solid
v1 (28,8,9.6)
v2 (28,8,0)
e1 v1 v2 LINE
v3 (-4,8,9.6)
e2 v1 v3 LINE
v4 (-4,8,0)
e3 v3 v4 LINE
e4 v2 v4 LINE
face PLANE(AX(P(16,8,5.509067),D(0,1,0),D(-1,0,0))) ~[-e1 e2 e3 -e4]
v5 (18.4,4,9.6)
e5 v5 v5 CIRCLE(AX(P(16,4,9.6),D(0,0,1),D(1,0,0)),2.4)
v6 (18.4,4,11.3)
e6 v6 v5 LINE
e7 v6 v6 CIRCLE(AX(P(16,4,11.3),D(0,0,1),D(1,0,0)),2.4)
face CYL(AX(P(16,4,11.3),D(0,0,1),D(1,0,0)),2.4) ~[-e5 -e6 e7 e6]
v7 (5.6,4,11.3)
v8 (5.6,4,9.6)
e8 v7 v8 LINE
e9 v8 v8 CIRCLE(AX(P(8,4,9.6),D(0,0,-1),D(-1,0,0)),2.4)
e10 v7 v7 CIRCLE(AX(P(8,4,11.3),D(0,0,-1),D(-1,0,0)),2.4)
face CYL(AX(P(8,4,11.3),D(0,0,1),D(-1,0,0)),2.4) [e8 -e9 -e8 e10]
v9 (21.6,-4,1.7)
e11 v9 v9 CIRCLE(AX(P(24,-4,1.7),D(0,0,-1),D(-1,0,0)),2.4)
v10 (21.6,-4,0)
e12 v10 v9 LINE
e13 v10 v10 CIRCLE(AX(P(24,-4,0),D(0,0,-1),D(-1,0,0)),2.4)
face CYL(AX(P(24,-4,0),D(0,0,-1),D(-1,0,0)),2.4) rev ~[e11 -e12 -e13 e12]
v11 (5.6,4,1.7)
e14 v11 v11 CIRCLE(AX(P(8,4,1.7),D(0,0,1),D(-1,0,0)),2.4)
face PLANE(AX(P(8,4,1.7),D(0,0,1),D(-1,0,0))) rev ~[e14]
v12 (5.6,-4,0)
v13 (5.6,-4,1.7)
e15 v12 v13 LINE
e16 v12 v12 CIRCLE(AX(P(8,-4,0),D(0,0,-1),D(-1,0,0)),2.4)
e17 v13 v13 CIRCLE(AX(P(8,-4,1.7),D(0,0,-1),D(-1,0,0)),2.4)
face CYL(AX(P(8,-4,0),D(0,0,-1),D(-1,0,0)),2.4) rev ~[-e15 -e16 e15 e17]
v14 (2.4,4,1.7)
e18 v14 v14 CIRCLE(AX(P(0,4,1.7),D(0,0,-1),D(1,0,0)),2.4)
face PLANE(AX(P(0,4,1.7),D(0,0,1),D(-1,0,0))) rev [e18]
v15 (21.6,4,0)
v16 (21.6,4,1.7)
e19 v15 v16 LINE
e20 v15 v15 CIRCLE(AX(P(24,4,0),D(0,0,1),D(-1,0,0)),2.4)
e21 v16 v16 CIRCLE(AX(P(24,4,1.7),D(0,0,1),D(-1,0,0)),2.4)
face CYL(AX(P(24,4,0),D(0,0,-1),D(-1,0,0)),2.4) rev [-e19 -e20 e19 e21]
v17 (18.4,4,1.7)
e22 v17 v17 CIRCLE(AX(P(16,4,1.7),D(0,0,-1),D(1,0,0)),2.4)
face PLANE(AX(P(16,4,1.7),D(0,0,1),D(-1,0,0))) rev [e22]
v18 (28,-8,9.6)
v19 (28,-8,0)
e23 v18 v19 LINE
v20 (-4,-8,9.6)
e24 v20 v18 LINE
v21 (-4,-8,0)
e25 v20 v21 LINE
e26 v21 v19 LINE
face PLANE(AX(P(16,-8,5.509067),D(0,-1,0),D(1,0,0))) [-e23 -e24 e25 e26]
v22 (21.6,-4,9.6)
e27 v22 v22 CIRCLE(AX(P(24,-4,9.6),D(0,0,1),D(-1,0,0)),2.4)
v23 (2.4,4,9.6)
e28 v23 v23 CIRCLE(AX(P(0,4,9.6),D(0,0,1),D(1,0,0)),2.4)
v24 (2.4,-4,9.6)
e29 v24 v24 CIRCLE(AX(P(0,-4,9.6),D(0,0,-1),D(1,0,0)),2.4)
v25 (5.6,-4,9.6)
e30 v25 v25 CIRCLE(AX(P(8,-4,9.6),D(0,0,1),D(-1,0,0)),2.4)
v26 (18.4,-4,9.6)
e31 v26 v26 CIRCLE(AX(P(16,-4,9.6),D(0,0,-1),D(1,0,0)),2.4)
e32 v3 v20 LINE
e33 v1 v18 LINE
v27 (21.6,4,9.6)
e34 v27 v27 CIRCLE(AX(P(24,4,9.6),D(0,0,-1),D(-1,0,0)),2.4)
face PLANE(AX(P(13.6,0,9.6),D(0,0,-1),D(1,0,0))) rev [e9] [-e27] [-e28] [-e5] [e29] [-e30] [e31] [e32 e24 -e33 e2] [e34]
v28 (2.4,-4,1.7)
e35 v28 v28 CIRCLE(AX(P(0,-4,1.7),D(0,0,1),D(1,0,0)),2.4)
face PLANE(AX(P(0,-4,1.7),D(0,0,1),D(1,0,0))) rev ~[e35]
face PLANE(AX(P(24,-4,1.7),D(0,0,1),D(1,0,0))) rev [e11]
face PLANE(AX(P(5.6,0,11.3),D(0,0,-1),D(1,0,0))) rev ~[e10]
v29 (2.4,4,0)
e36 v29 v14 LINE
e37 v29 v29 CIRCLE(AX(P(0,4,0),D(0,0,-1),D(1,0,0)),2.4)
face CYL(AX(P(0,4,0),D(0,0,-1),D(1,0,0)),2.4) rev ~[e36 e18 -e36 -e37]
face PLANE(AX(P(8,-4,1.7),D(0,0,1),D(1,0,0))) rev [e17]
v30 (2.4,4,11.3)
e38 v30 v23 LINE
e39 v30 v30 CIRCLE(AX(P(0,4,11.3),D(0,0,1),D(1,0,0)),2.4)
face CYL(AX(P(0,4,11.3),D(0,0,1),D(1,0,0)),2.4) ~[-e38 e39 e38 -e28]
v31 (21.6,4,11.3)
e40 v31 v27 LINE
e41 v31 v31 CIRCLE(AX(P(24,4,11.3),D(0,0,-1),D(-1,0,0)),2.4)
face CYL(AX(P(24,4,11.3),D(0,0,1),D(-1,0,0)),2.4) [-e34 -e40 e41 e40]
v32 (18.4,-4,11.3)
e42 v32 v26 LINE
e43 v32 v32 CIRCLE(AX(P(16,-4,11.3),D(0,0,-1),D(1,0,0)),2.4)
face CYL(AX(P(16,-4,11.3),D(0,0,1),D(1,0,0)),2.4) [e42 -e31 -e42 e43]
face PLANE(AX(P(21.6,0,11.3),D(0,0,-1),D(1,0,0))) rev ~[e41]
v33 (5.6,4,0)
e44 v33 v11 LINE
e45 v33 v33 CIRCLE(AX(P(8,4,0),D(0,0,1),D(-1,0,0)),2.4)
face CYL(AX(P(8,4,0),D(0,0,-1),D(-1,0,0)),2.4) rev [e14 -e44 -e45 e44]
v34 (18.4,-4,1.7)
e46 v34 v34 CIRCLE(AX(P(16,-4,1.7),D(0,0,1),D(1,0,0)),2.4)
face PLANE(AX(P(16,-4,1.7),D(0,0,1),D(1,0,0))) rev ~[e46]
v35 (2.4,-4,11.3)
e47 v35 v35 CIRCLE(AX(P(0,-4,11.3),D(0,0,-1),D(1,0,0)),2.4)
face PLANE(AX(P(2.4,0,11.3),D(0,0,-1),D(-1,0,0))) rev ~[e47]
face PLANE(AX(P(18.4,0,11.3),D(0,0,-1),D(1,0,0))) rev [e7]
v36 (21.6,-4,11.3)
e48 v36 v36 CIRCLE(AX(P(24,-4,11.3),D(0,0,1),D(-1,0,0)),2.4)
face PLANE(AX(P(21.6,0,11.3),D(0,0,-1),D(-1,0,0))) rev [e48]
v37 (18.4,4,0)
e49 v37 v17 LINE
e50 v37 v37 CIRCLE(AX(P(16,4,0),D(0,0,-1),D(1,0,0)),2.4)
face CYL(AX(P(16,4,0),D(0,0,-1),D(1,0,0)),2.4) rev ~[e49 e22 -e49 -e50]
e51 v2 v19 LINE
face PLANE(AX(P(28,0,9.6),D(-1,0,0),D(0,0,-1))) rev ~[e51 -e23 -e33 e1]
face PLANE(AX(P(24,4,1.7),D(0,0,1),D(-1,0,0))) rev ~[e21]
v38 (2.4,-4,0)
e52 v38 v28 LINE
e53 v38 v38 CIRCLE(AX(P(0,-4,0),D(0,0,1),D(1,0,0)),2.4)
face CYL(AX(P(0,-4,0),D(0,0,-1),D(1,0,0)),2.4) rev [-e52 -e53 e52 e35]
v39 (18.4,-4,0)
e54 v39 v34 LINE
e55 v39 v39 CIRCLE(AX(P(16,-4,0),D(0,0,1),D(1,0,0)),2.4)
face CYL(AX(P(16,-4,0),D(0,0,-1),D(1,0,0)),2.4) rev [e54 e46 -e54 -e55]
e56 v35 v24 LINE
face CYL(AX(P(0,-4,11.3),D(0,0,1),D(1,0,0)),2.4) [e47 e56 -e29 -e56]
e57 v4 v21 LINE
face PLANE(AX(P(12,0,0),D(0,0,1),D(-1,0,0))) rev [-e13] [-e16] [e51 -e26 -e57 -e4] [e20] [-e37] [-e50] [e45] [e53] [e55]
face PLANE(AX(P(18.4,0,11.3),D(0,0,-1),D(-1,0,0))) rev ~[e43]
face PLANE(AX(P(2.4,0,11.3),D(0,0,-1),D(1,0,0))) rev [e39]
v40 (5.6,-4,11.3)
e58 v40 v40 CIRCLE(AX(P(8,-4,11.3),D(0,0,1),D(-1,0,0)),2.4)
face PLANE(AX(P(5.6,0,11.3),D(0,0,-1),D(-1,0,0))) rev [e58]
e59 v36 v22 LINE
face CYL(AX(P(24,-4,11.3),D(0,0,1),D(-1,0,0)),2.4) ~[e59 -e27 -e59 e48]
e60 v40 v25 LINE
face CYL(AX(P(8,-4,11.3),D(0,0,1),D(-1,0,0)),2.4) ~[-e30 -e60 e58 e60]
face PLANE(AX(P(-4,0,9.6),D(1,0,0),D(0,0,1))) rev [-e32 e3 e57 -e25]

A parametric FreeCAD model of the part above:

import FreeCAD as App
import Part
import Sketcher
from FreeCAD import Vector
Q = App.Units.Quantity


def add_polygon(sketch, points):
    """Adds a closed chain of lines whose ends are joined by coincident constraints."""
    first, n = sketch.GeometryCount, len(points)
    for a, b in zip(points, points[1:] + points[:1]):
        sketch.addGeometry(Part.LineSegment(App.Vector(*a, 0), App.Vector(*b, 0)), False)
    for i in range(n):
        sketch.addConstraint(Sketcher.Constraint("Coincident", first + i, 2, first + (i + 1) % n, 1))

doc = App.newDocument("Part")
body = doc.addObject("PartDesign::Body", "Body")

sketch1 = doc.addObject("Sketcher::SketchObject", "Sketch")
body.addObject(sketch1)
sketch1.AttachmentSupport = (doc.XZ_Plane, [""])
sketch1.MapMode = "FlatFace"
add_polygon(sketch1, [(-2.4, 9.6), (-4, 9.6), (-4, 0), (4, 0), (4, 9.6), (2.4, 9.6), (2.4, 11.3), (-2.4, 11.3)])
sketch1.addConstraint([
    Sketcher.Constraint("Horizontal", 0),
    Sketcher.Constraint("Vertical", 1),
    Sketcher.Constraint("Horizontal", 2),
    Sketcher.Constraint("Vertical", 3),
    Sketcher.Constraint("Horizontal", 4),
    Sketcher.Constraint("Vertical", 5),
    Sketcher.Constraint("Horizontal", 6),
    Sketcher.Constraint("Vertical", 7),
    Sketcher.Constraint("Symmetric", 1, 2, 2, 2, -1, 1),
    Sketcher.Constraint("Symmetric", 4, 2, 7, 2, -2),
    Sketcher.Constraint("DistanceX", 2, 1, 2, 2, Q("8 mm")),
    Sketcher.Constraint("DistanceX", 0, 2, 0, 1, Q("1.6 mm")),
    Sketcher.Constraint("DistanceY", 1, 2, 1, 1, Q("9.6 mm")),
    Sketcher.Constraint("DistanceY", 5, 1, 5, 2, Q("1.7 mm")),
])
pad1 = doc.addObject("PartDesign::Pad", "Pad")
body.addObject(pad1)
pad1.Profile = sketch1
pad1.Length = 8

sketch2 = doc.addObject("Sketcher::SketchObject", "Sketch001")
body.addObject(sketch2)
sketch2.AttachmentSupport = (doc.XY_Plane, [""])
sketch2.MapMode = "FlatFace"
sketch2.AttachmentOffset = App.Placement(Vector(0, 0, 11.3), App.Rotation())
add_polygon(sketch2, [(-4, 0), (-4, -8), (4, -8), (4, 0)])
sketch2.addGeometry(Part.Circle(Vector(0, -4, 0), Vector(0, 0, 1), 2.4), False)
sketch2.addConstraint([
    Sketcher.Constraint("Vertical", 0),
    Sketcher.Constraint("Horizontal", 1),
    Sketcher.Constraint("Vertical", 2),
    Sketcher.Constraint("Horizontal", 3),
    Sketcher.Constraint("Symmetric", 2, 2, 3, 2, -1, 1),
    Sketcher.Constraint("PointOnObject", 4, 3, -2),
    Sketcher.Constraint("Equal", 3, 0),
    Sketcher.Constraint("Diameter", 4, Q("4.8 mm")),
    Sketcher.Constraint("DistanceX", 1, 1, 1, 2, Q("8 mm")),
    Sketcher.Constraint("DistanceY", 4, 3, -1, 1, Q("4 mm")),
])
pocket1 = doc.addObject("PartDesign::Pocket", "Pocket")
body.addObject(pocket1)
pocket1.Profile = sketch2
pocket1.Length = 1.7

sketch3 = doc.addObject("Sketcher::SketchObject", "Sketch002")
body.addObject(sketch3)
sketch3.AttachmentSupport = (doc.XY_Plane, [""])
sketch3.MapMode = "FlatFace"
sketch3.addGeometry(Part.Circle(Vector(0, -4, 0), Vector(0, 0, 1), 2.4), False)
sketch3.addConstraint([
    Sketcher.Constraint("PointOnObject", 0, 3, -2),
    Sketcher.Constraint("Diameter", 0, Q("4.8 mm")),
    Sketcher.Constraint("DistanceY", 0, 3, -1, 1, Q("4 mm")),
])
pocket2 = doc.addObject("PartDesign::Pocket", "Pocket001")
body.addObject(pocket2)
pocket2.Profile = sketch3
pocket2.Length = 1.7
pocket2.Reversed = True
body2 = doc.addObject("PartDesign::Body", "Body001")
doc.recompute()

body2.BaseFeature = body
doc.recompute()

mirroring = doc.addObject("Part::Mirroring", "Mirroring")
mirroring.Source = body
mirroring.Base = Vector(4, 0, 0)
mirroring.Normal = Vector(1, 0, 0)
body3 = doc.addObject("PartDesign::Body", "Body002")
body3.BaseFeature = mirroring
boolean = doc.addObject("PartDesign::Boolean", "Boolean")
body2.addObject(boolean)
boolean.Type = "Fuse"
boolean.addObjects([body3])
doc.recompute()
body4 = doc.addObject("PartDesign::Body", "Body003")
doc.recompute()

body4.BaseFeature = body2
doc.recompute()

mirroring2 = doc.addObject("Part::Mirroring", "Mirroring001")
mirroring2.Source = body2
mirroring2.Base = Vector(0, 0, 0)
mirroring2.Normal = Vector(0, -1, 0)
body5 = doc.addObject("PartDesign::Body", "Body004")
body5.BaseFeature = mirroring2
boolean2 = doc.addObject("PartDesign::Boolean", "Boolean001")
body4.addObject(boolean2)
boolean2.Type = "Fuse"
boolean2.addObjects([body5])
doc.recompute()
body6 = doc.addObject("PartDesign::Body", "Body005")
doc.recompute()

body6.BaseFeature = body4
doc.recompute()

mirroring3 = doc.addObject("Part::Mirroring", "Mirroring002")
mirroring3.Source = body4
mirroring3.Base = Vector(12, 0, 0)
mirroring3.Normal = Vector(1, 0, 0)
body7 = doc.addObject("PartDesign::Body", "Body006")
body7.BaseFeature = mirroring3
boolean3 = doc.addObject("PartDesign::Boolean", "Boolean002")
body6.addObject(boolean3)
boolean3.Type = "Fuse"
boolean3.addObjects([body7])
doc.recompute()
mirroring.Visibility = False
mirroring2.Visibility = False
mirroring3.Visibility = False

doc.recompute()
